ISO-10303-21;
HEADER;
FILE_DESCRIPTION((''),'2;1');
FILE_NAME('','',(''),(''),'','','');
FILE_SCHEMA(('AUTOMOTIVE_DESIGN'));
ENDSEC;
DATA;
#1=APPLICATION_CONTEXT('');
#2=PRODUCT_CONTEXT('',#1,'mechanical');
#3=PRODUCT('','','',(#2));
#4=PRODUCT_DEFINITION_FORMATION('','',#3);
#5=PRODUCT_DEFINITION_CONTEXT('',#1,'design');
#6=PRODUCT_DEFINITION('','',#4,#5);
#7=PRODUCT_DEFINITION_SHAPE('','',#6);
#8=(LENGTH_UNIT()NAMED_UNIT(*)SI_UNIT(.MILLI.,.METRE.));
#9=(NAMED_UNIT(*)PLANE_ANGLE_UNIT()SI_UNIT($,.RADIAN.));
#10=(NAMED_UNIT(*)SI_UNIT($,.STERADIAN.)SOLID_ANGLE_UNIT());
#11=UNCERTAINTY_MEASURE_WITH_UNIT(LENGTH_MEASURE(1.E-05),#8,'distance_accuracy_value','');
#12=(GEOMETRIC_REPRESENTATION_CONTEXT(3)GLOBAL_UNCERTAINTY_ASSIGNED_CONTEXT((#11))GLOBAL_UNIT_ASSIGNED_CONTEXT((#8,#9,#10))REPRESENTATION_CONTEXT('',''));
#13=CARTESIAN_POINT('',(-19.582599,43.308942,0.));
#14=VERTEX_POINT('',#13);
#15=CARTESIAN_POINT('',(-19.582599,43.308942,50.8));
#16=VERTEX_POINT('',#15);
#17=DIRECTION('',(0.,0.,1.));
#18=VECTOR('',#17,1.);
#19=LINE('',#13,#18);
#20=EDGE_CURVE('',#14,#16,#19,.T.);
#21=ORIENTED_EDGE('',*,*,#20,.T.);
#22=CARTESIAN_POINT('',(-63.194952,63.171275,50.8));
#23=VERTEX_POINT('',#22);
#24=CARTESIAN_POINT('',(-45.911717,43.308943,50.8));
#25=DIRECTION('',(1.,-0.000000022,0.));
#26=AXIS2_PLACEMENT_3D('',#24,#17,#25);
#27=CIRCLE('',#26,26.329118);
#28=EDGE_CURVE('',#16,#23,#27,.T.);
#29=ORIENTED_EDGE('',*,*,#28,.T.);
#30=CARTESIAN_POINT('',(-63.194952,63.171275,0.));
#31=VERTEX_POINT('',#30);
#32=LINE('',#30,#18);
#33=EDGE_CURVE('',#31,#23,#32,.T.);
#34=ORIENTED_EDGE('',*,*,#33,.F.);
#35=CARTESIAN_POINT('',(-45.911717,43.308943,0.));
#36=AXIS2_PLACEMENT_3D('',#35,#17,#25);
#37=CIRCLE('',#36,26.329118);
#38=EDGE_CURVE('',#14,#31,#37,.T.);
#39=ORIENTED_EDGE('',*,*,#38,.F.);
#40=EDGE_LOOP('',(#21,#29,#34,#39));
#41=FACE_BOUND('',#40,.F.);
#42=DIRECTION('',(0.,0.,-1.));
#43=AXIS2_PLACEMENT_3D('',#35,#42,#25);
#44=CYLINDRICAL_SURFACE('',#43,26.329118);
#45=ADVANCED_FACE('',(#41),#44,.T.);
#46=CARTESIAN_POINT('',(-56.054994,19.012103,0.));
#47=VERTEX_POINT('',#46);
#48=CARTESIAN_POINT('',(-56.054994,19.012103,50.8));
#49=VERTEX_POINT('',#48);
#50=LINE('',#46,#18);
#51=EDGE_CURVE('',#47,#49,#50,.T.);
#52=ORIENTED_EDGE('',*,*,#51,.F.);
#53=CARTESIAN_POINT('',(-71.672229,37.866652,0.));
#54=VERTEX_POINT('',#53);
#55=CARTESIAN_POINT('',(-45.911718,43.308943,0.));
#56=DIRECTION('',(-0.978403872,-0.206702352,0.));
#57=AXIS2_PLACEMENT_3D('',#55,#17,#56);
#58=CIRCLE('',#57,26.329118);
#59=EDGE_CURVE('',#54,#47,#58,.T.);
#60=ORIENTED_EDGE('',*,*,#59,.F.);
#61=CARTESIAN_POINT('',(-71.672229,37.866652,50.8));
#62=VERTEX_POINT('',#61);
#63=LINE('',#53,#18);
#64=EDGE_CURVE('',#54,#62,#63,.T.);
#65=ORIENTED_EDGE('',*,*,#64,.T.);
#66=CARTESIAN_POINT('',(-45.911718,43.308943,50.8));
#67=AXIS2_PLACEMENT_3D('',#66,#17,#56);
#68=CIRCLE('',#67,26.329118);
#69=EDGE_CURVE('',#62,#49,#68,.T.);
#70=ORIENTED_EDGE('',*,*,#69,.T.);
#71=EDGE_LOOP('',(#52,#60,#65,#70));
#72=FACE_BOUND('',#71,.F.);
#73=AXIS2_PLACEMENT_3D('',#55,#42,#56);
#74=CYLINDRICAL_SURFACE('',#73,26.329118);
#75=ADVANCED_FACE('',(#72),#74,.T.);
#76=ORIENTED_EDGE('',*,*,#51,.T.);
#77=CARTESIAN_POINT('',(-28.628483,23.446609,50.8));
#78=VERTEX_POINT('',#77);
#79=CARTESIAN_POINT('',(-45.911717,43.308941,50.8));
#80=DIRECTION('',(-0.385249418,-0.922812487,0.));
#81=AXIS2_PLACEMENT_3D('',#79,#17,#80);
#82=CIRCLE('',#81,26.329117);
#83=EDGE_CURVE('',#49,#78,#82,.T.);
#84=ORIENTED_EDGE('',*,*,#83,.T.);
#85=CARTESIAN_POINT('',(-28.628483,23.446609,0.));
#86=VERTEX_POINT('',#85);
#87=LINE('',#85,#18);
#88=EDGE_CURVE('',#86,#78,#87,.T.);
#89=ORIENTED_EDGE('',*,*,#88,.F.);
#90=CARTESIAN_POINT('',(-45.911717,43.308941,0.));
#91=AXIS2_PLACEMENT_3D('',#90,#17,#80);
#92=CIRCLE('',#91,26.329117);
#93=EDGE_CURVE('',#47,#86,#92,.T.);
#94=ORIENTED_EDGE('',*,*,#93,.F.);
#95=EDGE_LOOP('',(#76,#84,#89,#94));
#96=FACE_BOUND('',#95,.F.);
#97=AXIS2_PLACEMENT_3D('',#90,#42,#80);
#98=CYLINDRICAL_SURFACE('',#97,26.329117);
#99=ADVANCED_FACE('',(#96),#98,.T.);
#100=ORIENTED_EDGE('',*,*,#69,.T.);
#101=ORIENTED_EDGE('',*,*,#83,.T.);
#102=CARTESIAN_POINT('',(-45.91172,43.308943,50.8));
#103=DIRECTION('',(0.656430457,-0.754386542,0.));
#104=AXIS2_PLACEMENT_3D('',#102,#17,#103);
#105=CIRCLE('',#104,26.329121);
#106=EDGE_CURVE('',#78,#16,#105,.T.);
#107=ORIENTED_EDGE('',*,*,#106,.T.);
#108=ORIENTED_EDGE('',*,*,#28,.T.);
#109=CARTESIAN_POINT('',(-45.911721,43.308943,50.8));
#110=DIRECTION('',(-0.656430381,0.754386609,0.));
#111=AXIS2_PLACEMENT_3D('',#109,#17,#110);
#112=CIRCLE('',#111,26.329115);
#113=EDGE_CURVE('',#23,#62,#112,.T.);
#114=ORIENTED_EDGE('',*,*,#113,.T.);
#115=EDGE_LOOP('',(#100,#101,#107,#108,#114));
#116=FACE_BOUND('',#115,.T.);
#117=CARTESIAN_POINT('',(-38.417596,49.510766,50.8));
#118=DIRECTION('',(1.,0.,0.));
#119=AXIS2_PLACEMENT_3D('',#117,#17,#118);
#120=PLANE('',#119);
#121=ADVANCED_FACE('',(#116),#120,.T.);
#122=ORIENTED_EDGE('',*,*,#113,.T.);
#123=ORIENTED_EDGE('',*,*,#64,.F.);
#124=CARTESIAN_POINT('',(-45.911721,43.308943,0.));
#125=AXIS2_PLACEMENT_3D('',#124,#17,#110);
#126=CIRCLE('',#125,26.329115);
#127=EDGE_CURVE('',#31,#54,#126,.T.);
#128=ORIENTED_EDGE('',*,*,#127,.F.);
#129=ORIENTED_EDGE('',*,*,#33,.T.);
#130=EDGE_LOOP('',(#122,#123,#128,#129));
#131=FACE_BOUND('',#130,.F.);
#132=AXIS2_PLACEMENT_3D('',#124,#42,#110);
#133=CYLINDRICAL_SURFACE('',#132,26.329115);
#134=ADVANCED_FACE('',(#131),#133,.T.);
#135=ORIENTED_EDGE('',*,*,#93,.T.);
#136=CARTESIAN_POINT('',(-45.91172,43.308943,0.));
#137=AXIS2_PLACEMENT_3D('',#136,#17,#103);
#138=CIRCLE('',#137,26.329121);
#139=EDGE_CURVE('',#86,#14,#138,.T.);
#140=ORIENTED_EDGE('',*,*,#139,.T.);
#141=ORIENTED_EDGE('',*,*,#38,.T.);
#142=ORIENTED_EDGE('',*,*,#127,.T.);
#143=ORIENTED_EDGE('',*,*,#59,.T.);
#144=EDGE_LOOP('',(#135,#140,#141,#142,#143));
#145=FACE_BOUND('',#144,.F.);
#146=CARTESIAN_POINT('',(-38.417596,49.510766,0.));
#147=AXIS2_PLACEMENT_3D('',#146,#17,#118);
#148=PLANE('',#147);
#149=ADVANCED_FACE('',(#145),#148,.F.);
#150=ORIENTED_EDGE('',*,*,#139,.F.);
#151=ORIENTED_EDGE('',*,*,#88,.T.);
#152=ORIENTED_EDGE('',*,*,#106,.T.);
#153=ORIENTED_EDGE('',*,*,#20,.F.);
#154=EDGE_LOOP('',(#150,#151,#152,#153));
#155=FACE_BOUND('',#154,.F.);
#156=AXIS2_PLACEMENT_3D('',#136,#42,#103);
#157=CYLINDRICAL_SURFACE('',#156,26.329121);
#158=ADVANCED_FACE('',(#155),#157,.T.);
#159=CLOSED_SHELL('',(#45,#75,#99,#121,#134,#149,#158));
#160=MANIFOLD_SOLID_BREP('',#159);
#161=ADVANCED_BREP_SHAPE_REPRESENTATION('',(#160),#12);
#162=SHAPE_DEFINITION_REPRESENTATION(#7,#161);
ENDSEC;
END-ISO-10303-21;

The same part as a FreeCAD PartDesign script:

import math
import FreeCAD as App
import Part
import Sketcher
from FreeCAD import Vector
Q = App.Units.Quantity

doc = App.newDocument("Part")
body = doc.addObject("PartDesign::Body", "Body")

# Sketch on XY plane
sketch1 = doc.addObject("Sketcher::SketchObject", "Sketch")
body.addObject(sketch1)
sketch1.AttachmentSupport = (doc.XY_Plane, [""])
sketch1.MapMode = "FlatFace"
sketch1.addGeometry([
    Part.ArcOfCircle(Part.Circle(Vector(-45.91172, 43.308943, 0), Vector(0, 0, 1), 26.329121), math.radians(-48.971796), math.radians(-0.000003)),  # 0
    Part.ArcOfCircle(Part.Circle(Vector(-45.911717, 43.308943, 0), Vector(0, 0, 1), 26.329118), math.radians(-0.000001), math.radians(131.028204)),  # 1
    Part.ArcOfCircle(Part.Circle(Vector(-45.911721, 43.308943, 0), Vector(0, 0, 1), 26.329115), math.radians(131.028198), math.radians(191.929173)),  # 2
    Part.ArcOfCircle(Part.Circle(Vector(-45.911718, 43.308943, 0), Vector(0, 0, 1), 26.329118), math.radians(-168.070829), math.radians(-112.659223)),  # 3
    Part.ArcOfCircle(Part.Circle(Vector(-45.911717, 43.308941, 0), Vector(0, 0, 1), 26.329117), math.radians(-112.659225), math.radians(-48.971797)),  # 4
], False)
sketch1.addConstraint([
    Sketcher.Constraint("Coincident", 0, 2, 1, 1),
    Sketcher.Constraint("Coincident", 1, 2, 2, 1),
    Sketcher.Constraint("Coincident", 2, 2, 3, 1),
    Sketcher.Constraint("Coincident", 3, 2, 4, 1),
    Sketcher.Constraint("Coincident", 4, 2, 0, 1),
    Sketcher.Constraint("Coincident", 1, 3, 0, 3),
    Sketcher.Constraint("Coincident", 2, 3, 0, 3),
    Sketcher.Constraint("Coincident", 3, 3, 0, 3),
    Sketcher.Constraint("Radius", 0, Q("26.329121 mm")),
    Sketcher.Constraint("Radius", 4, Q("26.329117 mm")),
    Sketcher.Constraint("DistanceX", 0, 2, -1, 1, Q("19.582599 mm")),
    Sketcher.Constraint("DistanceY", -1, 1, 4, 3, Q("43.308941 mm")),
    Sketcher.Constraint("DistanceX", 2, 2, -1, 1, Q("71.672229 mm")),
    Sketcher.Constraint("DistanceY", -1, 1, 4, 2, Q("23.446609 mm")),
    Sketcher.Constraint("DistanceX", 1, 2, 2, 3, Q("17.283231 mm")),
    Sketcher.Constraint("DistanceY", 3, 2, 2, 2, Q("18.854549 mm")),
    Sketcher.Constraint("DistanceY", -1, 1, 0, 2, Q("43.308942 mm")),
])
pad1 = doc.addObject("PartDesign::Pad", "Pad")
body.addObject(pad1)
pad1.Profile = sketch1
pad1.Length = Q("2 in")

doc.recompute()
